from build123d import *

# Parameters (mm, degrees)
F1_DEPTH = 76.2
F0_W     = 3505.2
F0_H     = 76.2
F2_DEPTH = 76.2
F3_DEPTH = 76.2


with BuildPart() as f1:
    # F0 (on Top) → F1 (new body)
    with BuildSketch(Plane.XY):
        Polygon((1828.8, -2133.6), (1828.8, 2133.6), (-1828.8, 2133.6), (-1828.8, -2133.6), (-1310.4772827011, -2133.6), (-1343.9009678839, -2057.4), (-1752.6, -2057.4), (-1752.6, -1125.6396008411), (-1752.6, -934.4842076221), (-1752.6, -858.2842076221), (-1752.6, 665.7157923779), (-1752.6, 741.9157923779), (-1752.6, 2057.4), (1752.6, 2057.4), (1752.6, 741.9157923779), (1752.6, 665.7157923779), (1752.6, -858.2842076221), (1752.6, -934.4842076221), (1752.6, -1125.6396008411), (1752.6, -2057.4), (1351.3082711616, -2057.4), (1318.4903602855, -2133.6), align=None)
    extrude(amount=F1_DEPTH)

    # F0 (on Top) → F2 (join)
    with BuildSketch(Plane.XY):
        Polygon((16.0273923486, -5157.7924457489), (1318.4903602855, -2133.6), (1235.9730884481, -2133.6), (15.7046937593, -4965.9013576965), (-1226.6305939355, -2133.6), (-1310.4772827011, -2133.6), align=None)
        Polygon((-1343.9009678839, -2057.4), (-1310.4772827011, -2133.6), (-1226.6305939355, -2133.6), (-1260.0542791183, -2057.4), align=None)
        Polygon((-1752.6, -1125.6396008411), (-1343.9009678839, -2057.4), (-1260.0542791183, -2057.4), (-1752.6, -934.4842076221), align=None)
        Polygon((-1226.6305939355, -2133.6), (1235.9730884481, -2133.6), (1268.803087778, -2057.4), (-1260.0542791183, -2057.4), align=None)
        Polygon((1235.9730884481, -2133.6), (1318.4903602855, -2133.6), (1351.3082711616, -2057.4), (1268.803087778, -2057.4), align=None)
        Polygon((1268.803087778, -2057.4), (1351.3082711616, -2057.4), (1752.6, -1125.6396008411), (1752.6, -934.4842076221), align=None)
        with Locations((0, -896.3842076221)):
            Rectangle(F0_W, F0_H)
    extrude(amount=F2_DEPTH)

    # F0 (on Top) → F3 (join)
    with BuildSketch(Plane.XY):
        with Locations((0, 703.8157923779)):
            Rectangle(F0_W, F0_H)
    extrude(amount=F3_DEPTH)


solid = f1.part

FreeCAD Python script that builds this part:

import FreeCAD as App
import Part
import Sketcher

V = App.Vector
Q = App.Units.Quantity

doc = App.newDocument("Part")
body = doc.addObject("PartDesign::Body", "Body")

# Sketch on XY plane
sketch1 = body.newObject("Sketcher::SketchObject", "Sketch")
sketch1.AttachmentSupport = (doc.getObject("XY_Plane"), [""])
sketch1.MapMode = "FlatFace"
sketch1.addGeometry([
    Part.LineSegment(V(1829, -2134, 0), V(1829, 2134, 0)),  # 0
    Part.LineSegment(V(1829, 2134, 0), V(-1829, 2134, 0)),  # 1
    Part.LineSegment(V(-1829, 2134, 0), V(-1829, -2134, 0)),  # 2
    Part.LineSegment(V(-1829, -2134, 0), V(-1310, -2134, 0)),  # 3
    Part.LineSegment(V(-1310, -2134, 0), V(-1344, -2057, 0)),  # 4
    Part.LineSegment(V(-1344, -2057, 0), V(-1753, -2057, 0)),  # 5
    Part.LineSegment(V(-1753, -2057, 0), V(-1753, 2057, 0)),  # 6
    Part.LineSegment(V(-1753, 2057, 0), V(1753, 2057, 0)),  # 7
    Part.LineSegment(V(1753, 2057, 0), V(1753, -2057, 0)),  # 8
    Part.LineSegment(V(1753, -2057, 0), V(1351, -2057, 0)),  # 9
    Part.LineSegment(V(1351, -2057, 0), V(1318, -2134, 0)),  # 10
    Part.LineSegment(V(1318, -2134, 0), V(1829, -2134, 0)),  # 11
], False)
sketch1.addConstraint([
    Sketcher.Constraint("Coincident", 0, 2, 1, 1),
    Sketcher.Constraint("Coincident", 1, 2, 2, 1),
    Sketcher.Constraint("Coincident", 2, 2, 3, 1),
    Sketcher.Constraint("Coincident", 3, 2, 4, 1),
    Sketcher.Constraint("Coincident", 4, 2, 5, 1),
    Sketcher.Constraint("Coincident", 5, 2, 6, 1),
    Sketcher.Constraint("Coincident", 6, 2, 7, 1),
    Sketcher.Constraint("Coincident", 7, 2, 8, 1),
    Sketcher.Constraint("Coincident", 8, 2, 9, 1),
    Sketcher.Constraint("Coincident", 9, 2, 10, 1),
    Sketcher.Constraint("Coincident", 10, 2, 11, 1),
    Sketcher.Constraint("Coincident", 11, 2, 0, 1),
    Sketcher.Constraint("Vertical", 0),
    Sketcher.Constraint("Horizontal", 1),
    Sketcher.Constraint("Vertical", 2),
    Sketcher.Constraint("Horizontal", 3),
    Sketcher.Constraint("Horizontal", 5),
    Sketcher.Constraint("Vertical", 6),
    Sketcher.Constraint("Horizontal", 7),
    Sketcher.Constraint("Vertical", 8),
    Sketcher.Constraint("Horizontal", 9),
    Sketcher.Constraint("Horizontal", 11),
    Sketcher.Constraint("Symmetric", 0, 2, 2, 2, -1, 1),
    Sketcher.Constraint("Symmetric", 5, 2, 7, 2, -1, 1),
    Sketcher.Constraint("Horizontal", 5, 2, 8, 2),
    Sketcher.Constraint("Horizontal", 3, 2, 10, 2),
    Sketcher.Constraint("DistanceX", 1, 2, 1, 1, Q("144 in")),
    Sketcher.Constraint("DistanceX", 7, 1, 7, 2, Q("138 in")),
    Sketcher.Constraint("DistanceY", 0, 1, 0, 2, Q("168 in")),
    Sketcher.Constraint("DistanceY", 6, 1, 6, 2, Q("162 in")),
    Sketcher.Constraint("DistanceX", 4, 2, 9, 2, Q("106.1106 in")),
    Sketcher.Constraint("DistanceX", 9, 2, 9, 1, 401.291729),
    Sketcher.Constraint("DistanceX", 11, 1, 11, 2, 510.30964),
    Sketcher.Constraint("Distance", 4, 83.208069),
])
pad1 = body.newObject("PartDesign::Pad", "Pad")
pad1.Profile = sketch1
pad1.Length = Q("3 in")

# Sketch on XY plane
sketch2 = body.newObject("Sketcher::SketchObject", "Sketch001")
sketch2.AttachmentSupport = (doc.getObject("XY_Plane"), [""])
sketch2.MapMode = "FlatFace"
sketch2.addGeometry([
    Part.LineSegment(V(16, -5158, 0), V(1753, -1126, 0)),  # 0
    Part.LineSegment(V(1753, -1126, 0), V(1753, -934, 0)),  # 1
    Part.LineSegment(V(1753, -934, 0), V(1269, -2057, 0)),  # 2
    Part.LineSegment(V(1269, -2057, 0), V(-1260, -2057, 0)),  # 3
    Part.LineSegment(V(-1260, -2057, 0), V(-1753, -934, 0)),  # 4
    Part.LineSegment(V(-1753, -934, 0), V(-1753, -1126, 0)),  # 5
    Part.LineSegment(V(-1753, -1126, 0), V(16, -5158, 0)),  # 6
    Part.LineSegment(V(-1227, -2134, 0), V(1236, -2134, 0)),  # 7
    Part.LineSegment(V(1236, -2134, 0), V(16, -4966, 0)),  # 8
    Part.LineSegment(V(16, -4966, 0), V(-1227, -2134, 0)),  # 9
    Part.LineSegment(V(-1753, -858, 0), V(-1753, -934, 0)),  # 10
    Part.LineSegment(V(-1753, -934, 0), V(1753, -934, 0)),  # 11
    Part.LineSegment(V(1753, -934, 0), V(1753, -858, 0)),  # 12
    Part.LineSegment(V(1753, -858, 0), V(-1753, -858, 0)),  # 13
], False)
sketch2.addConstraint([
    Sketcher.Constraint("Coincident", 0, 2, 1, 1),
    Sketcher.Constraint("Coincident", 1, 2, 2, 1),
    Sketcher.Constraint("Coincident", 2, 2, 3, 1),
    Sketcher.Constraint("Coincident", 3, 2, 4, 1),
    Sketcher.Constraint("Coincident", 4, 2, 5, 1),
    Sketcher.Constraint("Coincident", 5, 2, 6, 1),
    Sketcher.Constraint("Coincident", 6, 2, 0, 1),
    Sketcher.Constraint("Coincident", 7, 2, 8, 1),
    Sketcher.Constraint("Coincident", 8, 2, 9, 1),
    Sketcher.Constraint("Coincident", 9, 2, 7, 1),
    Sketcher.Constraint("Coincident", 10, 2, 11, 1),
    Sketcher.Constraint("Coincident", 11, 2, 12, 1),
    Sketcher.Constraint("Coincident", 12, 2, 13, 1),
    Sketcher.Constraint("Coincident", 13, 2, 10, 1),
    Sketcher.Constraint("Vertical", 1),
    Sketcher.Constraint("Horizontal", 3),
    Sketcher.Constraint("Vertical", 5),
    Sketcher.Constraint("Horizontal", 7),
    Sketcher.Constraint("Vertical", 10),
    Sketcher.Constraint("Horizontal", 11),
    Sketcher.Constraint("Vertical", 12),
    Sketcher.Constraint("Horizontal", 13),
    Sketcher.Constraint("Coincident", 10, 2, 4, 2),
    Sketcher.Constraint("Coincident", 11, 2, 1, 2),
    Sketcher.Constraint("Symmetric", 0, 2, 5, 2, -2),
    Sketcher.Constraint("Parallel", 4, 6),
    Sketcher.Constraint("Parallel", 2, 8),
    Sketcher.Constraint("Parallel", 6, 9),
    Sketcher.Constraint("DistanceX", 11, 1, 11, 2, Q("138 in")),
    Sketcher.Constraint("DistanceY", 10, 2, 10, 1, Q("3 in")),
    Sketcher.Constraint("DistanceY", 2, 2, -1, 1, Q("81 in")),
    Sketcher.Constraint("DistanceY", 7, 2, -1, 1, Q("84 in")),
    Sketcher.Constraint("DistanceY", 0, 2, -1, 1, 1125.639601),
    Sketcher.Constraint("DistanceX", 7, 2, 2, 2, 32.829999),
    Sketcher.Constraint("DistanceX", 8, 2, 6, 2, 0.322699),
    Sketcher.Constraint("Distance", 2, 1222.701652),
    Sketcher.Constraint("Distance", 8, 3083.988641),
    Sketcher.Constraint("DistanceX", 3, 2, 3, 1, 2528.857367),
    Sketcher.Constraint("DistanceY", 1, 1, 1, 2, 191.155393),
])
pad2 = body.newObject("PartDesign::Pad", "Pad001")
pad2.Profile = sketch2
pad2.Length = Q("3 in")

# Sketch on XY plane
sketch3 = body.newObject("Sketcher::SketchObject", "Sketch002")
sketch3.AttachmentSupport = (doc.getObject("XY_Plane"), [""])
sketch3.MapMode = "FlatFace"
sketch3.addGeometry([
    Part.LineSegment(V(-1753, 742, 0), V(-1753, 666, 0)),
    Part.LineSegment(V(-1753, 666, 0), V(1753, 666, 0)),
    Part.LineSegment(V(1753, 666, 0), V(1753, 742, 0)),
    Part.LineSegment(V(1753, 742, 0), V(-1753, 742, 0)),
], False)
sketch3.addConstraint([
    Sketcher.Constraint("Coincident", 0, 2, 1, 1),
    Sketcher.Constraint("Coincident", 1, 2, 2, 1),
    Sketcher.Constraint("Coincident", 2, 2, 3, 1),
    Sketcher.Constraint("Coincident", 3, 2, 0, 1),
    Sketcher.Constraint("Vertical", 0),
    Sketcher.Constraint("Horizontal", 1),
    Sketcher.Constraint("Vertical", 2),
    Sketcher.Constraint("Horizontal", 3),
    Sketcher.Constraint("DistanceX", 1, 1, 1, 2, Q("138 in")),
    Sketcher.Constraint("DistanceY", 0, 2, 0, 1, Q("3 in")),
    Sketcher.Constraint("DistanceX", 0, 2, -1, 1, Q("69 in")),
    Sketcher.Constraint("DistanceY", -1, 1, 0, 2, 665.715792),
])
pad3 = body.newObject("PartDesign::Pad", "Pad002")
pad3.Profile = sketch3
pad3.Length = Q("3 in")

doc.recompute()
